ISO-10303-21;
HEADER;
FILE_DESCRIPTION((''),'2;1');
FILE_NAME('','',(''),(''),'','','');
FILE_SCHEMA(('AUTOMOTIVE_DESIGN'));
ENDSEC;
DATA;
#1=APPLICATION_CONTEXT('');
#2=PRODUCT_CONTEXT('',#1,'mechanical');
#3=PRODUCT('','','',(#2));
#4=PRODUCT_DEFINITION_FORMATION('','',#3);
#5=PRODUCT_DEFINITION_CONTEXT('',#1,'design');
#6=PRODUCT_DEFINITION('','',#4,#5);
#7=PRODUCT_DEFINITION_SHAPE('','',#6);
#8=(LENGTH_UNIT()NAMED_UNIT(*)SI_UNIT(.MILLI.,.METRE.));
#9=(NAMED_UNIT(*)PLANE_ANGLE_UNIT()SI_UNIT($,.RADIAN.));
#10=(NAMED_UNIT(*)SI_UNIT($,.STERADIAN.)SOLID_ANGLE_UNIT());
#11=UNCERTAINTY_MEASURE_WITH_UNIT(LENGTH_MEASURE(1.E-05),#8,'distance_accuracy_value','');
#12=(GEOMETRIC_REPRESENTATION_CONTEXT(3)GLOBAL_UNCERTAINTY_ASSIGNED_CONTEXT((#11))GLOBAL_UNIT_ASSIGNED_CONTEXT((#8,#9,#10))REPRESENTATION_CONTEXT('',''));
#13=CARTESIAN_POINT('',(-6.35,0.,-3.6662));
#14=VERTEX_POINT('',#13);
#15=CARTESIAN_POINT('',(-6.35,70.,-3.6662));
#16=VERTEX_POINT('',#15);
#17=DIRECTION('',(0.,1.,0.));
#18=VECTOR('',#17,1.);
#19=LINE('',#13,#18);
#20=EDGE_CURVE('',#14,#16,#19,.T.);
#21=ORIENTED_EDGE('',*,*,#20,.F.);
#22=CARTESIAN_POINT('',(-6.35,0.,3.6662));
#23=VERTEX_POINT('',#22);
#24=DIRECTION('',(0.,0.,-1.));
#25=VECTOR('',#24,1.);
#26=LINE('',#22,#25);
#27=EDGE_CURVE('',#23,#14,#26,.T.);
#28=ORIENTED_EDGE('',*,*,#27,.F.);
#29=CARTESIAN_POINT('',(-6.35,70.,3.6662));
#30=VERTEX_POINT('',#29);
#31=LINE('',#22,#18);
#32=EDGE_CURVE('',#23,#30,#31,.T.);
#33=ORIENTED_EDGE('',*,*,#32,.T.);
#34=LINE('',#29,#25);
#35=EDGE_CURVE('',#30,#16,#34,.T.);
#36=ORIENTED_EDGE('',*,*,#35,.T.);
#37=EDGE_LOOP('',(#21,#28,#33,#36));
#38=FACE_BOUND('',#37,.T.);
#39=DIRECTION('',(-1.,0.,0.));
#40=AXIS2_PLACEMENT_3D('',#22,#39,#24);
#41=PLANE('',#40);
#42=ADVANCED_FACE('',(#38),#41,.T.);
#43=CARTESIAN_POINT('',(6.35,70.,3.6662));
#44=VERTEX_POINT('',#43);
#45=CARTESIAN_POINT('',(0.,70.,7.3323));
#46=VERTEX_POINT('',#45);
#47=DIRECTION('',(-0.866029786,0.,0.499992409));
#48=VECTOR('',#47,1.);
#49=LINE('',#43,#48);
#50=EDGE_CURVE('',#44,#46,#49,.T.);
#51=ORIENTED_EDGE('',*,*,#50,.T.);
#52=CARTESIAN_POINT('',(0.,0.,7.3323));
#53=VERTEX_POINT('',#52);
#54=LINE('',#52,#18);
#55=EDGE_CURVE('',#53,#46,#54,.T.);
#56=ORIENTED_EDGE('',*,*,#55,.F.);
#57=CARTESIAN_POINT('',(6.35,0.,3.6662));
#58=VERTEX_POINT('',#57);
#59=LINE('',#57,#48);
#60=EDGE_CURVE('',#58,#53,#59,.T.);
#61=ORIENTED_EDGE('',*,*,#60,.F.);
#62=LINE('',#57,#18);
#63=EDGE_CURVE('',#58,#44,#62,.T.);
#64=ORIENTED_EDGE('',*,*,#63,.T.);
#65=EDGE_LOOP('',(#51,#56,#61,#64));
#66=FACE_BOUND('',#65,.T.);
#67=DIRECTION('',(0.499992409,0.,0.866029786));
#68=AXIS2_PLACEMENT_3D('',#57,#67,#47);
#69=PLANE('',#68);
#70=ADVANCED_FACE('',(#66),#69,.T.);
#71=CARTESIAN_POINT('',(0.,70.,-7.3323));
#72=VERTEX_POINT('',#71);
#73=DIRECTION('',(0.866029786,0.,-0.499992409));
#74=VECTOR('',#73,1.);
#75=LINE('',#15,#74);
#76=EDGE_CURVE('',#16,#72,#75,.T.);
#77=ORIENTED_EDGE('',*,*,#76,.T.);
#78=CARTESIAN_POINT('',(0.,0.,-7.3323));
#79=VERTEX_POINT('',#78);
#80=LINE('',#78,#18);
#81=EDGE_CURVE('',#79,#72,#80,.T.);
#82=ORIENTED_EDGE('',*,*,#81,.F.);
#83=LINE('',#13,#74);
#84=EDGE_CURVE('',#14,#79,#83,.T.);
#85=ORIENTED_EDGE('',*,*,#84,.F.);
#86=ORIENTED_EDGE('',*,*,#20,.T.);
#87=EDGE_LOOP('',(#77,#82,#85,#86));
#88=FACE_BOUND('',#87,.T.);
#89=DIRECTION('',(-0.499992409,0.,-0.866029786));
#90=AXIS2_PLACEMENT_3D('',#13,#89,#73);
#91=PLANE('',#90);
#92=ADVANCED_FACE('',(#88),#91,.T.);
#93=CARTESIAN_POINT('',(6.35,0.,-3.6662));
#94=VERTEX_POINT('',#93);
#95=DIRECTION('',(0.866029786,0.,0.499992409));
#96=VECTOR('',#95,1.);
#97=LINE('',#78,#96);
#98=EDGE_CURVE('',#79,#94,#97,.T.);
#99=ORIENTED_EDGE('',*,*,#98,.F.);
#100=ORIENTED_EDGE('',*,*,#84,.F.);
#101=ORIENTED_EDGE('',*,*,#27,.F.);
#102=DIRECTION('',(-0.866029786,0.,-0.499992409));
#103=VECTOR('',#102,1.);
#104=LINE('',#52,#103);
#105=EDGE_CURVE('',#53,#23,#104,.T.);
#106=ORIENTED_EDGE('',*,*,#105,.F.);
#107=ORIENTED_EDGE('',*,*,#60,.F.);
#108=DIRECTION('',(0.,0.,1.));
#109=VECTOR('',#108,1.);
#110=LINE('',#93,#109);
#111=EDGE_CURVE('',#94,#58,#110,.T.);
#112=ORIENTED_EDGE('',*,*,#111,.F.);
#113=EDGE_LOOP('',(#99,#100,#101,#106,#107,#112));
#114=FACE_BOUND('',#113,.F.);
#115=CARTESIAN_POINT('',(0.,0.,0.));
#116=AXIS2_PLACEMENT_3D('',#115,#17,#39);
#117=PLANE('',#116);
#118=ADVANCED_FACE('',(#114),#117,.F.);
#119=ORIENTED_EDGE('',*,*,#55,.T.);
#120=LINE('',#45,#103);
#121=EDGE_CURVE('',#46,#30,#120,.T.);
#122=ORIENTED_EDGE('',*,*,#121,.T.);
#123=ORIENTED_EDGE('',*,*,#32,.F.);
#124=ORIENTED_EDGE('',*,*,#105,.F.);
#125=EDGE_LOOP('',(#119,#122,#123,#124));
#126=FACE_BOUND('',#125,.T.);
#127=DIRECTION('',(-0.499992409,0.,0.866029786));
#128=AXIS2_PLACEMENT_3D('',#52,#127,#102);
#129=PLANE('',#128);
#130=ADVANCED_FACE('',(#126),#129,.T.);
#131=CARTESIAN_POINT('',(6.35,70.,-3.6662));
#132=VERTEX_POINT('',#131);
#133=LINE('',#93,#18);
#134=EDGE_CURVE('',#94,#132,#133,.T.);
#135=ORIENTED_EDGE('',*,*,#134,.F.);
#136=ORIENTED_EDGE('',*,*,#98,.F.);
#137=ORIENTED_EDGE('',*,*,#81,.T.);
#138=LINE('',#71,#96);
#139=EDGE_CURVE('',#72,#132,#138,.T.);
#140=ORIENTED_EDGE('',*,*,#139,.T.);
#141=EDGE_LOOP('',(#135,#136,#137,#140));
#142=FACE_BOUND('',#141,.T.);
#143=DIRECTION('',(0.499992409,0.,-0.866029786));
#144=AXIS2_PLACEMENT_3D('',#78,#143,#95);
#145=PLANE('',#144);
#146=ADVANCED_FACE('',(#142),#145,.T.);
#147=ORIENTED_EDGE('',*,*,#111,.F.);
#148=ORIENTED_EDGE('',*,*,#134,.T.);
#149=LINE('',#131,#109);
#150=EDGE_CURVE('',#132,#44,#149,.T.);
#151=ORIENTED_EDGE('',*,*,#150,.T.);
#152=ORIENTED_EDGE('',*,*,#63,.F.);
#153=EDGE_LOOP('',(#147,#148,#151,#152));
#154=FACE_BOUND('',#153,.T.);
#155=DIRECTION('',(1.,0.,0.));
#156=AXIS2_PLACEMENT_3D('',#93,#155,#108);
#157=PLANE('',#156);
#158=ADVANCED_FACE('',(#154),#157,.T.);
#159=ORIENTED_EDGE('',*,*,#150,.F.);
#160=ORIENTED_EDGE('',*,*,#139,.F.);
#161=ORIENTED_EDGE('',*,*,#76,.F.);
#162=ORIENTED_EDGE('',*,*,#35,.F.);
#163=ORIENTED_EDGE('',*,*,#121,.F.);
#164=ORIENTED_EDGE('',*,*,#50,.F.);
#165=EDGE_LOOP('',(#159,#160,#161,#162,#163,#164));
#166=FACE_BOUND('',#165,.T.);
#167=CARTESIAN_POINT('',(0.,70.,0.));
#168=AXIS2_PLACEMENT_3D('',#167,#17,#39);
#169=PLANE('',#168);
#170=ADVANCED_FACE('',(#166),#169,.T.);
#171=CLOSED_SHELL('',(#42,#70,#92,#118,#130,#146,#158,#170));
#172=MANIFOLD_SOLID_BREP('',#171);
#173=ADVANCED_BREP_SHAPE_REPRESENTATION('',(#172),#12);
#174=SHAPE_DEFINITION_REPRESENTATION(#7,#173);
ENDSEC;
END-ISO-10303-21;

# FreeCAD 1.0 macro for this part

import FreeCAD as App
import Part
import Sketcher
from FreeCAD import Vector
Q = App.Units.Quantity


def add_polygon(sketch, points):
    """Adds a closed chain of lines whose ends are joined by coincident constraints."""
    first, n = sketch.GeometryCount, len(points)
    for a, b in zip(points, points[1:] + points[:1]):
        sketch.addGeometry(Part.LineSegment(App.Vector(*a, 0), App.Vector(*b, 0)), False)
    for i in range(n):
        sketch.addConstraint(Sketcher.Constraint("Coincident", first + i, 2, first + (i + 1) % n, 1))

doc = App.newDocument("Part")
body = doc.addObject("PartDesign::Body", "Body")

sketch1 = body.newObject("Sketcher::SketchObject", "Sketch")
sketch1.AttachmentSupport = (doc.getObject("XZ_Plane"), [""])
sketch1.MapMode = "FlatFace"
add_polygon(sketch1, [(6.35, -3.6662), (0, -7.3323), (-6.35, -3.6662), (-6.35, 3.6662), (0, 7.3323), (6.35, 3.6662)])
sketch1.addConstraint(Sketcher.Constraint("Vertical", 2))
sketch1.addConstraint(Sketcher.Constraint("Vertical", 5))
sketch1.addConstraint(Sketcher.Constraint("Symmetric", 0, 2, 3, 2, -1, 1))
sketch1.addConstraint(Sketcher.Constraint("Symmetric", 1, 2, 4, 2, -1, 1))
sketch1.addConstraint(Sketcher.Constraint("PointOnObject", 0, 2, -2))
sketch1.addConstraint(Sketcher.Constraint("Parallel", 0, 3))
sketch1.addConstraint(Sketcher.Constraint("Horizontal", 2, 2, 4, 2))
sketch1.addConstraint(Sketcher.Constraint("DistanceX", 2, 2, 4, 2, 12.7))
sketch1.addConstraint(Sketcher.Constraint("Angle", 0, Q("-150.0005 deg")))
sketch1.addConstraint(Sketcher.Constraint("DistanceY", 2, 1, 2, 2, 7.3324))
pad1 = body.newObject("PartDesign::Pad", "Pad")
pad1.Profile = sketch1
pad1.Length = 70
pad1.Reversed = True

doc.recompute()
